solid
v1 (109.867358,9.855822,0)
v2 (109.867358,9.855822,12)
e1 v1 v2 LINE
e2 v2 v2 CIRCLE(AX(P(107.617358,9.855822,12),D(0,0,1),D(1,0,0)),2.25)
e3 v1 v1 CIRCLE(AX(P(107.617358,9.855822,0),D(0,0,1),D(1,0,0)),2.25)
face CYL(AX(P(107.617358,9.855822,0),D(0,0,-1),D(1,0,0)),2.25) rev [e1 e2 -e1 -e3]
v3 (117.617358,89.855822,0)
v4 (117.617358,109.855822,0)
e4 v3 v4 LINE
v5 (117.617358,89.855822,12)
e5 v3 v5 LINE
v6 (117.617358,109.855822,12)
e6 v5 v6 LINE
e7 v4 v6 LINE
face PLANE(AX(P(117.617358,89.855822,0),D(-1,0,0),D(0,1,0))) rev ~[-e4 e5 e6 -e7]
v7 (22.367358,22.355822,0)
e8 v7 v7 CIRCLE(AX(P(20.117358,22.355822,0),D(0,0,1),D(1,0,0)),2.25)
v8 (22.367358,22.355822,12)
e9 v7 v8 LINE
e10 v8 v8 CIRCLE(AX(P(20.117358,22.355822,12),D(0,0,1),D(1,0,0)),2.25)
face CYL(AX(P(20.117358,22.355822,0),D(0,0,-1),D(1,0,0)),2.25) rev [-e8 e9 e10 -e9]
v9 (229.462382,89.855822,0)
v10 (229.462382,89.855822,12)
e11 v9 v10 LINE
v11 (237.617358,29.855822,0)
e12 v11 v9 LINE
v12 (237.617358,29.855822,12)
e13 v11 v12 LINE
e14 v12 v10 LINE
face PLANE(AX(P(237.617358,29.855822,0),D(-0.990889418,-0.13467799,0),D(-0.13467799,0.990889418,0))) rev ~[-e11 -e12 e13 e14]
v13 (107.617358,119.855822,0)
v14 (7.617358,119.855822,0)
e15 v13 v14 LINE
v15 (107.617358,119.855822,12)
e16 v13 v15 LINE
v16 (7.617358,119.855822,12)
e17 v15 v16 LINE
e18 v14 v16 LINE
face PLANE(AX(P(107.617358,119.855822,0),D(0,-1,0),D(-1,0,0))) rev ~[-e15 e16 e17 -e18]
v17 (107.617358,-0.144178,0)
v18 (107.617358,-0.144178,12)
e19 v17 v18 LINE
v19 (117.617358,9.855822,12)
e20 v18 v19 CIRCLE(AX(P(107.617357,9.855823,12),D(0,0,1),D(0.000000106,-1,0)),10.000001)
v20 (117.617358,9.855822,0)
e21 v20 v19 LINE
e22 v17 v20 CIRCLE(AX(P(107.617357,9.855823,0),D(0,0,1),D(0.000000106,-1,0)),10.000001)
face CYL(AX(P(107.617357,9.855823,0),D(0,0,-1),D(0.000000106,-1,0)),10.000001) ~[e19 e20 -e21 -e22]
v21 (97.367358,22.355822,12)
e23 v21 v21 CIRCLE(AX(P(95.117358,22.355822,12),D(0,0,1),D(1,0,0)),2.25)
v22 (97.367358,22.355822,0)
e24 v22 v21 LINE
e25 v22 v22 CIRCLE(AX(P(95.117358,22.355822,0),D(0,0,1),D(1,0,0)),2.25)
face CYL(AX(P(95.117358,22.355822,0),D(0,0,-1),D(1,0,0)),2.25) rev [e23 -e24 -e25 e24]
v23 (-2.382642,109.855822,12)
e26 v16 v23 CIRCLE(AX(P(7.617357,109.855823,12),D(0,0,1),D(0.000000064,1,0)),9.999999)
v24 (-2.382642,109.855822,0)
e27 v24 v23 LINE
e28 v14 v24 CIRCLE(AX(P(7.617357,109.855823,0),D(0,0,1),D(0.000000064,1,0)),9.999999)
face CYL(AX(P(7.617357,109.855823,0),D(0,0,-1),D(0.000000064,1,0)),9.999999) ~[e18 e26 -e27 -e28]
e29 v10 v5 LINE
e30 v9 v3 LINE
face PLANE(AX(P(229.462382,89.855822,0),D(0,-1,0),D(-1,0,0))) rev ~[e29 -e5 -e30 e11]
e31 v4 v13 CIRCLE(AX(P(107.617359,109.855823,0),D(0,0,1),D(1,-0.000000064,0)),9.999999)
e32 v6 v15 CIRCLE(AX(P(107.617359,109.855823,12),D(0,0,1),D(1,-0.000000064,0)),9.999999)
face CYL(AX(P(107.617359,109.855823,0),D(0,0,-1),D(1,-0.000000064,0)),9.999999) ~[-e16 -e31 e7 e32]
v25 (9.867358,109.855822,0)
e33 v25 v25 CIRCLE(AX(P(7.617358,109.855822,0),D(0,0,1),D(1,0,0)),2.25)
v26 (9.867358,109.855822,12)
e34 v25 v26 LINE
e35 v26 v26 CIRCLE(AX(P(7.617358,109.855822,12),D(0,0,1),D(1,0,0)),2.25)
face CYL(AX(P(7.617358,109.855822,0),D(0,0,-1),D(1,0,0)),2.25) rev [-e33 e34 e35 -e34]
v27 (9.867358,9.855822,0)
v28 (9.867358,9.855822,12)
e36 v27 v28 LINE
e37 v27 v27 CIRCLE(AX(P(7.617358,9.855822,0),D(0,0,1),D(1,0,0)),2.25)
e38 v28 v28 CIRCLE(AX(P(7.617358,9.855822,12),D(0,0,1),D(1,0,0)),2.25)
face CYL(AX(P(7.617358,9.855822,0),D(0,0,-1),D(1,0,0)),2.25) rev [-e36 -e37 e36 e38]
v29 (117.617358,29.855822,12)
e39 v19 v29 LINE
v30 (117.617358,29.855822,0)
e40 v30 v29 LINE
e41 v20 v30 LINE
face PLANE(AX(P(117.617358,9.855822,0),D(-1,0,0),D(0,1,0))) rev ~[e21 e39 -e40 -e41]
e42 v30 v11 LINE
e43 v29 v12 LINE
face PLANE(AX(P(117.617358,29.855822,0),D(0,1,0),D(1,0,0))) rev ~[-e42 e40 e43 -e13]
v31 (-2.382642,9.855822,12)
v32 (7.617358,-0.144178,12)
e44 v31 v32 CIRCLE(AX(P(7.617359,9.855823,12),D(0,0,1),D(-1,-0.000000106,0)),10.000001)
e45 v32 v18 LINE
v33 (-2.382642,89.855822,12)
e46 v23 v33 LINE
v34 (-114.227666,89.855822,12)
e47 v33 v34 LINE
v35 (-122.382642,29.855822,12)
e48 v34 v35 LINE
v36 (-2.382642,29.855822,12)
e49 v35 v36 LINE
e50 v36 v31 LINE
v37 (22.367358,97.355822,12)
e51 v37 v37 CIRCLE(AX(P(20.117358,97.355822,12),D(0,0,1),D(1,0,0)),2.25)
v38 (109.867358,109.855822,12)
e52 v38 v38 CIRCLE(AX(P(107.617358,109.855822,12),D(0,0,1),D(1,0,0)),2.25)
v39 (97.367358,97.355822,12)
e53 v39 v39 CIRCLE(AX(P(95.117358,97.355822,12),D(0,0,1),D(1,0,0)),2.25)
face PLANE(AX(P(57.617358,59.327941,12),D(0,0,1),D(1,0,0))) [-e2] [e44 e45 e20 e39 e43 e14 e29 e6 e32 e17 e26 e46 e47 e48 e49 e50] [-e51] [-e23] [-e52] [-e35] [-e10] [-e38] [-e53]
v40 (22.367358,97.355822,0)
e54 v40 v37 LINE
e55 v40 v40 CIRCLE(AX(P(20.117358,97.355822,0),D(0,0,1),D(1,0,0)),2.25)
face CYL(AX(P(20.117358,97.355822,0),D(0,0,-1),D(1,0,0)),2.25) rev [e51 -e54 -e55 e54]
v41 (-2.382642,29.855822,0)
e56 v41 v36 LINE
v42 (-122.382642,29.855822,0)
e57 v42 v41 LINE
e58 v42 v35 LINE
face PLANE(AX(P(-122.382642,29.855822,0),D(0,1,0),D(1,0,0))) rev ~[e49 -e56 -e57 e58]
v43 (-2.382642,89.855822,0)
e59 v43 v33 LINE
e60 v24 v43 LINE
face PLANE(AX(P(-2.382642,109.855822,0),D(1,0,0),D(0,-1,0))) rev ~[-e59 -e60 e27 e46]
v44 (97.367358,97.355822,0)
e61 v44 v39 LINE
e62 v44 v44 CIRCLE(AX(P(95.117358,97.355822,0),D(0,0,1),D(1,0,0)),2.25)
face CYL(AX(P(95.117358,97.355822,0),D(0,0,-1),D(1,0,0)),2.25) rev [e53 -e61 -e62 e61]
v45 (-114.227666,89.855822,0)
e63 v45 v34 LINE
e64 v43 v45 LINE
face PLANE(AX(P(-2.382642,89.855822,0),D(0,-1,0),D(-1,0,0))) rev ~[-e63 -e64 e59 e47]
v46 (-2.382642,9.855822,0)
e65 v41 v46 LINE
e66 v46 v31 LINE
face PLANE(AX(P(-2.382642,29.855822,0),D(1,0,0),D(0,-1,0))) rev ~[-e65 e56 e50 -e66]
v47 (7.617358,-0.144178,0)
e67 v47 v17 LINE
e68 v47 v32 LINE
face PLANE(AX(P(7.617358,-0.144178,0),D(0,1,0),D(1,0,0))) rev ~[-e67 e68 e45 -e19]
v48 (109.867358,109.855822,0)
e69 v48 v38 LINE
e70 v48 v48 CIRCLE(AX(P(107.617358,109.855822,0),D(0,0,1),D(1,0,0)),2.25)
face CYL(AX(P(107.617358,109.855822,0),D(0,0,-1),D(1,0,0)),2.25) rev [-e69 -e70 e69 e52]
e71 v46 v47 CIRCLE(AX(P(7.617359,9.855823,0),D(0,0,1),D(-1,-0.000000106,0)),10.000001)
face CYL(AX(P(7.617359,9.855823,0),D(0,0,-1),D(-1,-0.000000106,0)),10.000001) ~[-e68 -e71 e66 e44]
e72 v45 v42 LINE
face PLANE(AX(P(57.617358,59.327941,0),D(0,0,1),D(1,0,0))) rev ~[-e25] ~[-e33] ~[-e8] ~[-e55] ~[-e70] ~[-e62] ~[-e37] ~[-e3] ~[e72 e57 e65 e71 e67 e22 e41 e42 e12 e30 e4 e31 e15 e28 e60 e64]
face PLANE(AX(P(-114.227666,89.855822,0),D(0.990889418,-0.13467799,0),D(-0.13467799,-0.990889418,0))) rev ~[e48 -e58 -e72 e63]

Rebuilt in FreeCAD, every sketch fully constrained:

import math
import FreeCAD as App
import Part
import Sketcher

V = App.Vector
Q = App.Units.Quantity

doc = App.newDocument("Part")
params = doc.addObject("Spreadsheet::Sheet", "Params")
for row, (alias, value) in enumerate([
    ("sketch1_radius", "10.000001 mm"),
    ("sketch1_diameter", "4.5 mm"),
    ("sketch1_width", "100 mm"),
    ("sketch1_width2", "120 mm"),
    ("sketch1_height", "20 mm"),
    ("pad1_length", "12 mm"),
], start=1):
    params.set(f"A{row}", alias)
    params.set(f"B{row}", "=" + value)
    params.setAlias(f"B{row}", alias)

body = doc.addObject("PartDesign::Body", "Body")

# Sketch on XY plane
sketch1 = body.newObject("Sketcher::SketchObject", "Sketch")
sketch1.AttachmentSupport = (doc.getObject("XY_Plane"), [""])
sketch1.MapMode = "FlatFace"
sketch1.addGeometry([
    Part.ArcOfCircle(Part.Circle(V(7.617359, 9.855823, 0), V(0, 0, 1), 10.000001), math.radians(-179.999994), math.radians(-90.000006)),  # 0
    Part.LineSegment(V(7.617358, -0.144178, 0), V(107.617358, -0.144178, 0)),  # 1
    Part.ArcOfCircle(Part.Circle(V(107.617357, 9.855823, 0), V(0, 0, 1), 10.000001), math.radians(-89.999994), math.radians(-0.000006)),  # 2
    Part.LineSegment(V(117.617358, 9.855822, 0), V(117.617358, 29.855822, 0)),  # 3
    Part.LineSegment(V(117.617358, 29.855822, 0), V(237.617358, 29.855822, 0)),  # 4
    Part.LineSegment(V(237.617358, 29.855822, 0), V(229.462382, 89.855822, 0)),  # 5
    Part.LineSegment(V(229.462382, 89.855822, 0), V(117.617358, 89.855822, 0)),  # 6
    Part.LineSegment(V(117.617358, 89.855822, 0), V(117.617358, 109.855822, 0)),  # 7
    Part.ArcOfCircle(Part.Circle(V(107.617359, 109.855823, 0), V(0, 0, 1), 9.999999), math.radians(-0.000004), math.radians(90.000004)),  # 8
    Part.LineSegment(V(107.617358, 119.855822, 0), V(7.617358, 119.855822, 0)),  # 9
    Part.ArcOfCircle(Part.Circle(V(7.617357, 109.855823, 0), V(0, 0, 1), 9.999999), math.radians(89.999996), math.radians(180.000004)),  # 10
    Part.LineSegment(V(-2.382642, 109.855822, 0), V(-2.382642, 89.855822, 0)),  # 11
    Part.LineSegment(V(-2.382642, 89.855822, 0), V(-114.227666, 89.855822, 0)),  # 12
    Part.LineSegment(V(-114.227666, 89.855822, 0), V(-122.382642, 29.855822, 0)),  # 13
    Part.LineSegment(V(-122.382642, 29.855822, 0), V(-2.382642, 29.855822, 0)),  # 14
    Part.LineSegment(V(-2.382642, 29.855822, 0), V(-2.382642, 9.855822, 0)),  # 15
    Part.Circle(V(7.617358, 9.855822, 0), V(0, 0, 1), 2.25),  # 16
    Part.Circle(V(20.117358, 22.355822, 0), V(0, 0, 1), 2.25),  # 17
    Part.Circle(V(107.617358, 9.855822, 0), V(0, 0, 1), 2.25),  # 18
    Part.Circle(V(95.117358, 22.355822, 0), V(0, 0, 1), 2.25),  # 19
    Part.Circle(V(20.117358, 97.355822, 0), V(0, 0, 1), 2.25),  # 20
    Part.Circle(V(7.617358, 109.855822, 0), V(0, 0, 1), 2.25),  # 21
    Part.Circle(V(95.117358, 97.355822, 0), V(0, 0, 1), 2.25),  # 22
    Part.Circle(V(107.617358, 109.855822, 0), V(0, 0, 1), 2.25),  # 23
], False)
sketch1.addConstraint([
    Sketcher.Constraint("Tangent", 0, 2, 1, 1),
    Sketcher.Constraint("Tangent", 1, 2, 2, 1),
    Sketcher.Constraint("Tangent", 2, 2, 3, 1),
    Sketcher.Constraint("Coincident", 3, 2, 4, 1),
    Sketcher.Constraint("Coincident", 4, 2, 5, 1),
    Sketcher.Constraint("Coincident", 5, 2, 6, 1),
    Sketcher.Constraint("Coincident", 6, 2, 7, 1),
    Sketcher.Constraint("Tangent", 7, 2, 8, 1),
    Sketcher.Constraint("Tangent", 8, 2, 9, 1),
    Sketcher.Constraint("Tangent", 9, 2, 10, 1),
    Sketcher.Constraint("Tangent", 10, 2, 11, 1),
    Sketcher.Constraint("Coincident", 11, 2, 12, 1),
    Sketcher.Constraint("Coincident", 12, 2, 13, 1),
    Sketcher.Constraint("Coincident", 13, 2, 14, 1),
    Sketcher.Constraint("Coincident", 14, 2, 15, 1),
    Sketcher.Constraint("Tangent", 15, 2, 0, 1),
    Sketcher.Constraint("Horizontal", 1),
    Sketcher.Constraint("Vertical", 3),
    Sketcher.Constraint("Horizontal", 4),
    Sketcher.Constraint("Horizontal", 6),
    Sketcher.Constraint("Vertical", 7),
    Sketcher.Constraint("Horizontal", 9),
    Sketcher.Constraint("Vertical", 11),
    Sketcher.Constraint("Horizontal", 12),
    Sketcher.Constraint("Horizontal", 14),
    Sketcher.Constraint("Vertical", 15),
    Sketcher.Constraint("Coincident", 16, 3, 0, 3),
    Sketcher.Constraint("Coincident", 18, 3, 2, 3),
    Sketcher.Constraint("Coincident", 21, 3, 10, 3),
    Sketcher.Constraint("Coincident", 23, 3, 8, 3),
    Sketcher.Constraint("Equal", 0, 2),
    Sketcher.Constraint("Equal", 2, 8),
    Sketcher.Constraint("Equal", 8, 10),
    Sketcher.Constraint("Equal", 16, 17),
    Sketcher.Constraint("Equal", 17, 18),
    Sketcher.Constraint("Equal", 18, 19),
    Sketcher.Constraint("Equal", 19, 20),
    Sketcher.Constraint("Equal", 20, 21),
    Sketcher.Constraint("Equal", 21, 22),
    Sketcher.Constraint("Equal", 22, 23),
    Sketcher.Constraint("Horizontal", 17, 3, 19, 3),
    Sketcher.Constraint("Horizontal", 20, 3, 22, 3),
    Sketcher.Constraint("Horizontal", 6, 2, 11, 2),
    Sketcher.Constraint("Horizontal", 4, 2, 13, 2),
    Sketcher.Constraint("Vertical", 2, 3, 8, 3),
    Sketcher.Constraint("Vertical", 0, 3, 10, 3),
    Sketcher.Constraint("Vertical", 17, 3, 20, 3),
    Sketcher.Constraint("Vertical", 19, 3, 22, 3),
    Sketcher.Constraint("Equal", 6, 12),
    Sketcher.Constraint("Equal", 4, 14),
    Sketcher.Constraint("Equal", 3, 7),
    Sketcher.Constraint("Radius", 0, Q("10.000001 mm")),
    Sketcher.Constraint("Diameter", 16, Q("4.5 mm")),
    Sketcher.Constraint("DistanceX", 1, 1, 1, 2, Q("100 mm")),
    Sketcher.Constraint("DistanceX", 4, 1, 4, 2, Q("120 mm")),
    Sketcher.Constraint("DistanceY", 3, 1, 3, 2, Q("20 mm")),
    Sketcher.Constraint("DistanceY", 2, 3, 8, 3, Q("100 mm")),
    Sketcher.Constraint("DistanceX", 17, 3, 19, 3, Q("75 mm")),
    Sketcher.Constraint("DistanceY", 17, 3, 20, 3, Q("75 mm")),
    Sketcher.Constraint("Angle", 5, Q("97.74 deg")),
    Sketcher.Constraint("DistanceX", 0, 3, 17, 3, Q("12.499999 mm")),
    Sketcher.Constraint("DistanceY", 0, 3, 17, 3, Q("12.499999 mm")),
    Sketcher.Constraint("DistanceX", -1, 1, 0, 3, Q("7.617359 mm")),
    Sketcher.Constraint("DistanceY", -1, 1, 17, 3, Q("22.355822 mm")),
])
sketch1.setExpression("Constraints[51]", "Params.sketch1_radius")
sketch1.setExpression("Constraints[52]", "Params.sketch1_diameter")
sketch1.setExpression("Constraints[53]", "Params.sketch1_width")
sketch1.setExpression("Constraints[54]", "Params.sketch1_width2")
sketch1.setExpression("Constraints[55]", "Params.sketch1_height")
pad1 = body.newObject("PartDesign::Pad", "Pad")
pad1.Profile = sketch1
pad1.setExpression("Length", "Params.pad1_length")

doc.recompute()
